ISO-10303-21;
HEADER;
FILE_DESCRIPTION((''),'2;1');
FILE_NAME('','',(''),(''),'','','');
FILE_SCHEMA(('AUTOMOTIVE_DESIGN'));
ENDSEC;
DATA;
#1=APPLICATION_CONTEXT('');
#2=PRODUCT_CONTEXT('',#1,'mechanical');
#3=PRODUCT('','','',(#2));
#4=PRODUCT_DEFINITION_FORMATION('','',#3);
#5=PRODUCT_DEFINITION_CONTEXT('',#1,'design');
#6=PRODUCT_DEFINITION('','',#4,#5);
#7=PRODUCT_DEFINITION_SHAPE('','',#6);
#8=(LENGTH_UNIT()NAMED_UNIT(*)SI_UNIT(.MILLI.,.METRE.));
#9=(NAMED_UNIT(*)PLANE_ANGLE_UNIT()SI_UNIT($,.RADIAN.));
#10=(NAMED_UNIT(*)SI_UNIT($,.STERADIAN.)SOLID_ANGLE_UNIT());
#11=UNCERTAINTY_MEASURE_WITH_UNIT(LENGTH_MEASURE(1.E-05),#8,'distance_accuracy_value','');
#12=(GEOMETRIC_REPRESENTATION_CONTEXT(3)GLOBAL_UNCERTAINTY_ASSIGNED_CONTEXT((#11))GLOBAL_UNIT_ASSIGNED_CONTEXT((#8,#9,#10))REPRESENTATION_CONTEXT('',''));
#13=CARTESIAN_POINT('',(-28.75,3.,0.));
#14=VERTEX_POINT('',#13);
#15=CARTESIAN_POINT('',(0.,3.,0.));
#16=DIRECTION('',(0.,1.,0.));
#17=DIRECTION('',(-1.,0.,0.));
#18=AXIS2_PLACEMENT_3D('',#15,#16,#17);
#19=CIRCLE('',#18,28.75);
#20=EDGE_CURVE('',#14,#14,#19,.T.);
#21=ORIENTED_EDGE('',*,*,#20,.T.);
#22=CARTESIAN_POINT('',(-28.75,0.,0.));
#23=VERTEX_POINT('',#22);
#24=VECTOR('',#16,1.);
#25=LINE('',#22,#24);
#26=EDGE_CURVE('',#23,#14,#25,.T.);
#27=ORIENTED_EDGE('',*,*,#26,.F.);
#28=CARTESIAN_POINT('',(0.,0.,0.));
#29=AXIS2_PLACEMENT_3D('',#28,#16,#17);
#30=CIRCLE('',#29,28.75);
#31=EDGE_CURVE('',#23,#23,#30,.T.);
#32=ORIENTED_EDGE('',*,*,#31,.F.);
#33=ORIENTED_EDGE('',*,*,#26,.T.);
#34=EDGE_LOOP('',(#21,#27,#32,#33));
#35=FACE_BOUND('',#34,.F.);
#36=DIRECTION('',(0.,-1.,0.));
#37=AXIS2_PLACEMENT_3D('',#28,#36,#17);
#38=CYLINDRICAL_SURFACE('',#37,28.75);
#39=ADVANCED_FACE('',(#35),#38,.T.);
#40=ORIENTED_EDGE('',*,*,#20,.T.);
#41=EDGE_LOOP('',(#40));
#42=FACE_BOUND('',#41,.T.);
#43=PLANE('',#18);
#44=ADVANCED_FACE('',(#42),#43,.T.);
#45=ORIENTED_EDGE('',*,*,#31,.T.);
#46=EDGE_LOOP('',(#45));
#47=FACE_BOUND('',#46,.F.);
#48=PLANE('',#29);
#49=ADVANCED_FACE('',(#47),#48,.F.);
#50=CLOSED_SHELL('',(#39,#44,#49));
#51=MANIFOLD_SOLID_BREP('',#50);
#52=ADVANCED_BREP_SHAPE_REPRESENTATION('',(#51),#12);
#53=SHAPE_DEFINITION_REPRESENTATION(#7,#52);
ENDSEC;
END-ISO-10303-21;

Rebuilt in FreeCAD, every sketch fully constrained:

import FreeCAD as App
import Part
import Sketcher

doc = App.newDocument("Part")
params = doc.addObject("Spreadsheet::Sheet", "Params")
for row, (alias, value) in enumerate([
    ("sketch1_diameter", "57.5 mm"),
    ("pad1_length", "3 mm"),
], start=1):
    params.set(f"A{row}", alias)
    params.set(f"B{row}", "=" + value)
    params.setAlias(f"B{row}", alias)

body = doc.addObject("PartDesign::Body", "Body")

sketch1 = doc.addObject("Sketcher::SketchObject", "Sketch")
body.addObject(sketch1)
sketch1.AttachmentSupport = (doc.XZ_Plane, [""])
sketch1.MapMode = "FlatFace"
sketch1.addGeometry(Part.Circle(App.Vector(0, 0, 0), App.Vector(0, 0, 1), 29), False)
sketch1.addConstraint([
    Sketcher.Constraint("Coincident", 0, 3, -1, 1),
    Sketcher.Constraint("Diameter", 0, 57.5),
])
sketch1.setExpression("Constraints[1]", "Params.sketch1_diameter")
pad1 = doc.addObject("PartDesign::Pad", "Pad")
body.addObject(pad1)
pad1.Profile = sketch1
pad1.setExpression("Length", "Params.pad1_length")
pad1.Reversed = True

doc.recompute()
